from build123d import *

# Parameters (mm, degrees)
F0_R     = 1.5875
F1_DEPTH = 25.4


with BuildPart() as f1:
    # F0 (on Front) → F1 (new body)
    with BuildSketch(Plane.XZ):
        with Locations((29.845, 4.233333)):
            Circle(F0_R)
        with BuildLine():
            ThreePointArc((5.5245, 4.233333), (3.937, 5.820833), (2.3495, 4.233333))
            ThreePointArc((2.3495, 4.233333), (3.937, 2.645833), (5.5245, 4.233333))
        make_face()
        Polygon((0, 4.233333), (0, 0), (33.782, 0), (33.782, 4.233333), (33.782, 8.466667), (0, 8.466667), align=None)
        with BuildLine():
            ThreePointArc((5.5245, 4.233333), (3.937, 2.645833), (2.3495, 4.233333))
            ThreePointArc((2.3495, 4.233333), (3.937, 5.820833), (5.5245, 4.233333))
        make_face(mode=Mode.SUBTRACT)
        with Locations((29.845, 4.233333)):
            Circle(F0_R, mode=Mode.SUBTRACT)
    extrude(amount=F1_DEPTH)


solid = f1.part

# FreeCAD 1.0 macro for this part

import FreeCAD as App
import Part
import Sketcher

V = App.Vector
Q = App.Units.Quantity

doc = App.newDocument("Part")
body = doc.addObject("PartDesign::Body", "Body")

# Sketch on XZ plane
sketch1 = body.newObject("Sketcher::SketchObject", "Sketch")
sketch1.AttachmentSupport = (doc.getObject("XZ_Plane"), [""])
sketch1.MapMode = "FlatFace"
sketch1.addGeometry(Part.LineSegment(V(0, 0, 0), V(33.782, 0, 0)), False)
sketch1.addGeometry(Part.LineSegment(V(33.782, 0, 0), V(33.782, 8.466667, 0)), False)
sketch1.addGeometry(Part.LineSegment(V(33.782, 8.466667, 0), V(0, 8.466667, 0)), False)
sketch1.addGeometry(Part.LineSegment(V(0, 8.466667, 0), V(0, 0, 0)), False)
sketch1.addGeometry(Part.Circle(V(3.937, 4.233333, 0), V(0, 0, 1), 1.5875), False)
sketch1.addGeometry(Part.Circle(V(29.845, 4.233333, 0), V(0, 0, 1), 1.5875), False)
sketch1.addConstraint(Sketcher.Constraint("Coincident", 0, 2, 1, 1))
sketch1.addConstraint(Sketcher.Constraint("Coincident", 1, 2, 2, 1))
sketch1.addConstraint(Sketcher.Constraint("Coincident", 2, 2, 3, 1))
sketch1.addConstraint(Sketcher.Constraint("Coincident", 3, 2, 0, 1))
sketch1.addConstraint(Sketcher.Constraint("Horizontal", 0))
sketch1.addConstraint(Sketcher.Constraint("Vertical", 1))
sketch1.addConstraint(Sketcher.Constraint("Horizontal", 2))
sketch1.addConstraint(Sketcher.Constraint("Vertical", 3))
sketch1.addConstraint(Sketcher.Constraint("Coincident", 3, 2, -1, 1))
sketch1.addConstraint(Sketcher.Constraint("Equal", 4, 5))
sketch1.addConstraint(Sketcher.Constraint("Horizontal", 4, 3, 5, 3))
sketch1.addConstraint(Sketcher.Constraint("Diameter", 4, Q("0.125 in")))
sketch1.addConstraint(Sketcher.Constraint("DistanceX", 0, 1, 0, 2, Q("1.33 in")))
sketch1.addConstraint(Sketcher.Constraint("DistanceX", 4, 3, 5, 3, Q("1.02 in")))
sketch1.addConstraint(Sketcher.Constraint("DistanceX", -1, 1, 4, 3, Q("0.155 in")))
sketch1.addConstraint(Sketcher.Constraint("DistanceY", 1, 1, 1, 2, 8.466667))
sketch1.addConstraint(Sketcher.Constraint("DistanceY", -1, 1, 4, 3, 4.233333))
pad1 = body.newObject("PartDesign::Pad", "Pad")
pad1.Profile = sketch1
pad1.Length = Q("1 in")

doc.recompute()
